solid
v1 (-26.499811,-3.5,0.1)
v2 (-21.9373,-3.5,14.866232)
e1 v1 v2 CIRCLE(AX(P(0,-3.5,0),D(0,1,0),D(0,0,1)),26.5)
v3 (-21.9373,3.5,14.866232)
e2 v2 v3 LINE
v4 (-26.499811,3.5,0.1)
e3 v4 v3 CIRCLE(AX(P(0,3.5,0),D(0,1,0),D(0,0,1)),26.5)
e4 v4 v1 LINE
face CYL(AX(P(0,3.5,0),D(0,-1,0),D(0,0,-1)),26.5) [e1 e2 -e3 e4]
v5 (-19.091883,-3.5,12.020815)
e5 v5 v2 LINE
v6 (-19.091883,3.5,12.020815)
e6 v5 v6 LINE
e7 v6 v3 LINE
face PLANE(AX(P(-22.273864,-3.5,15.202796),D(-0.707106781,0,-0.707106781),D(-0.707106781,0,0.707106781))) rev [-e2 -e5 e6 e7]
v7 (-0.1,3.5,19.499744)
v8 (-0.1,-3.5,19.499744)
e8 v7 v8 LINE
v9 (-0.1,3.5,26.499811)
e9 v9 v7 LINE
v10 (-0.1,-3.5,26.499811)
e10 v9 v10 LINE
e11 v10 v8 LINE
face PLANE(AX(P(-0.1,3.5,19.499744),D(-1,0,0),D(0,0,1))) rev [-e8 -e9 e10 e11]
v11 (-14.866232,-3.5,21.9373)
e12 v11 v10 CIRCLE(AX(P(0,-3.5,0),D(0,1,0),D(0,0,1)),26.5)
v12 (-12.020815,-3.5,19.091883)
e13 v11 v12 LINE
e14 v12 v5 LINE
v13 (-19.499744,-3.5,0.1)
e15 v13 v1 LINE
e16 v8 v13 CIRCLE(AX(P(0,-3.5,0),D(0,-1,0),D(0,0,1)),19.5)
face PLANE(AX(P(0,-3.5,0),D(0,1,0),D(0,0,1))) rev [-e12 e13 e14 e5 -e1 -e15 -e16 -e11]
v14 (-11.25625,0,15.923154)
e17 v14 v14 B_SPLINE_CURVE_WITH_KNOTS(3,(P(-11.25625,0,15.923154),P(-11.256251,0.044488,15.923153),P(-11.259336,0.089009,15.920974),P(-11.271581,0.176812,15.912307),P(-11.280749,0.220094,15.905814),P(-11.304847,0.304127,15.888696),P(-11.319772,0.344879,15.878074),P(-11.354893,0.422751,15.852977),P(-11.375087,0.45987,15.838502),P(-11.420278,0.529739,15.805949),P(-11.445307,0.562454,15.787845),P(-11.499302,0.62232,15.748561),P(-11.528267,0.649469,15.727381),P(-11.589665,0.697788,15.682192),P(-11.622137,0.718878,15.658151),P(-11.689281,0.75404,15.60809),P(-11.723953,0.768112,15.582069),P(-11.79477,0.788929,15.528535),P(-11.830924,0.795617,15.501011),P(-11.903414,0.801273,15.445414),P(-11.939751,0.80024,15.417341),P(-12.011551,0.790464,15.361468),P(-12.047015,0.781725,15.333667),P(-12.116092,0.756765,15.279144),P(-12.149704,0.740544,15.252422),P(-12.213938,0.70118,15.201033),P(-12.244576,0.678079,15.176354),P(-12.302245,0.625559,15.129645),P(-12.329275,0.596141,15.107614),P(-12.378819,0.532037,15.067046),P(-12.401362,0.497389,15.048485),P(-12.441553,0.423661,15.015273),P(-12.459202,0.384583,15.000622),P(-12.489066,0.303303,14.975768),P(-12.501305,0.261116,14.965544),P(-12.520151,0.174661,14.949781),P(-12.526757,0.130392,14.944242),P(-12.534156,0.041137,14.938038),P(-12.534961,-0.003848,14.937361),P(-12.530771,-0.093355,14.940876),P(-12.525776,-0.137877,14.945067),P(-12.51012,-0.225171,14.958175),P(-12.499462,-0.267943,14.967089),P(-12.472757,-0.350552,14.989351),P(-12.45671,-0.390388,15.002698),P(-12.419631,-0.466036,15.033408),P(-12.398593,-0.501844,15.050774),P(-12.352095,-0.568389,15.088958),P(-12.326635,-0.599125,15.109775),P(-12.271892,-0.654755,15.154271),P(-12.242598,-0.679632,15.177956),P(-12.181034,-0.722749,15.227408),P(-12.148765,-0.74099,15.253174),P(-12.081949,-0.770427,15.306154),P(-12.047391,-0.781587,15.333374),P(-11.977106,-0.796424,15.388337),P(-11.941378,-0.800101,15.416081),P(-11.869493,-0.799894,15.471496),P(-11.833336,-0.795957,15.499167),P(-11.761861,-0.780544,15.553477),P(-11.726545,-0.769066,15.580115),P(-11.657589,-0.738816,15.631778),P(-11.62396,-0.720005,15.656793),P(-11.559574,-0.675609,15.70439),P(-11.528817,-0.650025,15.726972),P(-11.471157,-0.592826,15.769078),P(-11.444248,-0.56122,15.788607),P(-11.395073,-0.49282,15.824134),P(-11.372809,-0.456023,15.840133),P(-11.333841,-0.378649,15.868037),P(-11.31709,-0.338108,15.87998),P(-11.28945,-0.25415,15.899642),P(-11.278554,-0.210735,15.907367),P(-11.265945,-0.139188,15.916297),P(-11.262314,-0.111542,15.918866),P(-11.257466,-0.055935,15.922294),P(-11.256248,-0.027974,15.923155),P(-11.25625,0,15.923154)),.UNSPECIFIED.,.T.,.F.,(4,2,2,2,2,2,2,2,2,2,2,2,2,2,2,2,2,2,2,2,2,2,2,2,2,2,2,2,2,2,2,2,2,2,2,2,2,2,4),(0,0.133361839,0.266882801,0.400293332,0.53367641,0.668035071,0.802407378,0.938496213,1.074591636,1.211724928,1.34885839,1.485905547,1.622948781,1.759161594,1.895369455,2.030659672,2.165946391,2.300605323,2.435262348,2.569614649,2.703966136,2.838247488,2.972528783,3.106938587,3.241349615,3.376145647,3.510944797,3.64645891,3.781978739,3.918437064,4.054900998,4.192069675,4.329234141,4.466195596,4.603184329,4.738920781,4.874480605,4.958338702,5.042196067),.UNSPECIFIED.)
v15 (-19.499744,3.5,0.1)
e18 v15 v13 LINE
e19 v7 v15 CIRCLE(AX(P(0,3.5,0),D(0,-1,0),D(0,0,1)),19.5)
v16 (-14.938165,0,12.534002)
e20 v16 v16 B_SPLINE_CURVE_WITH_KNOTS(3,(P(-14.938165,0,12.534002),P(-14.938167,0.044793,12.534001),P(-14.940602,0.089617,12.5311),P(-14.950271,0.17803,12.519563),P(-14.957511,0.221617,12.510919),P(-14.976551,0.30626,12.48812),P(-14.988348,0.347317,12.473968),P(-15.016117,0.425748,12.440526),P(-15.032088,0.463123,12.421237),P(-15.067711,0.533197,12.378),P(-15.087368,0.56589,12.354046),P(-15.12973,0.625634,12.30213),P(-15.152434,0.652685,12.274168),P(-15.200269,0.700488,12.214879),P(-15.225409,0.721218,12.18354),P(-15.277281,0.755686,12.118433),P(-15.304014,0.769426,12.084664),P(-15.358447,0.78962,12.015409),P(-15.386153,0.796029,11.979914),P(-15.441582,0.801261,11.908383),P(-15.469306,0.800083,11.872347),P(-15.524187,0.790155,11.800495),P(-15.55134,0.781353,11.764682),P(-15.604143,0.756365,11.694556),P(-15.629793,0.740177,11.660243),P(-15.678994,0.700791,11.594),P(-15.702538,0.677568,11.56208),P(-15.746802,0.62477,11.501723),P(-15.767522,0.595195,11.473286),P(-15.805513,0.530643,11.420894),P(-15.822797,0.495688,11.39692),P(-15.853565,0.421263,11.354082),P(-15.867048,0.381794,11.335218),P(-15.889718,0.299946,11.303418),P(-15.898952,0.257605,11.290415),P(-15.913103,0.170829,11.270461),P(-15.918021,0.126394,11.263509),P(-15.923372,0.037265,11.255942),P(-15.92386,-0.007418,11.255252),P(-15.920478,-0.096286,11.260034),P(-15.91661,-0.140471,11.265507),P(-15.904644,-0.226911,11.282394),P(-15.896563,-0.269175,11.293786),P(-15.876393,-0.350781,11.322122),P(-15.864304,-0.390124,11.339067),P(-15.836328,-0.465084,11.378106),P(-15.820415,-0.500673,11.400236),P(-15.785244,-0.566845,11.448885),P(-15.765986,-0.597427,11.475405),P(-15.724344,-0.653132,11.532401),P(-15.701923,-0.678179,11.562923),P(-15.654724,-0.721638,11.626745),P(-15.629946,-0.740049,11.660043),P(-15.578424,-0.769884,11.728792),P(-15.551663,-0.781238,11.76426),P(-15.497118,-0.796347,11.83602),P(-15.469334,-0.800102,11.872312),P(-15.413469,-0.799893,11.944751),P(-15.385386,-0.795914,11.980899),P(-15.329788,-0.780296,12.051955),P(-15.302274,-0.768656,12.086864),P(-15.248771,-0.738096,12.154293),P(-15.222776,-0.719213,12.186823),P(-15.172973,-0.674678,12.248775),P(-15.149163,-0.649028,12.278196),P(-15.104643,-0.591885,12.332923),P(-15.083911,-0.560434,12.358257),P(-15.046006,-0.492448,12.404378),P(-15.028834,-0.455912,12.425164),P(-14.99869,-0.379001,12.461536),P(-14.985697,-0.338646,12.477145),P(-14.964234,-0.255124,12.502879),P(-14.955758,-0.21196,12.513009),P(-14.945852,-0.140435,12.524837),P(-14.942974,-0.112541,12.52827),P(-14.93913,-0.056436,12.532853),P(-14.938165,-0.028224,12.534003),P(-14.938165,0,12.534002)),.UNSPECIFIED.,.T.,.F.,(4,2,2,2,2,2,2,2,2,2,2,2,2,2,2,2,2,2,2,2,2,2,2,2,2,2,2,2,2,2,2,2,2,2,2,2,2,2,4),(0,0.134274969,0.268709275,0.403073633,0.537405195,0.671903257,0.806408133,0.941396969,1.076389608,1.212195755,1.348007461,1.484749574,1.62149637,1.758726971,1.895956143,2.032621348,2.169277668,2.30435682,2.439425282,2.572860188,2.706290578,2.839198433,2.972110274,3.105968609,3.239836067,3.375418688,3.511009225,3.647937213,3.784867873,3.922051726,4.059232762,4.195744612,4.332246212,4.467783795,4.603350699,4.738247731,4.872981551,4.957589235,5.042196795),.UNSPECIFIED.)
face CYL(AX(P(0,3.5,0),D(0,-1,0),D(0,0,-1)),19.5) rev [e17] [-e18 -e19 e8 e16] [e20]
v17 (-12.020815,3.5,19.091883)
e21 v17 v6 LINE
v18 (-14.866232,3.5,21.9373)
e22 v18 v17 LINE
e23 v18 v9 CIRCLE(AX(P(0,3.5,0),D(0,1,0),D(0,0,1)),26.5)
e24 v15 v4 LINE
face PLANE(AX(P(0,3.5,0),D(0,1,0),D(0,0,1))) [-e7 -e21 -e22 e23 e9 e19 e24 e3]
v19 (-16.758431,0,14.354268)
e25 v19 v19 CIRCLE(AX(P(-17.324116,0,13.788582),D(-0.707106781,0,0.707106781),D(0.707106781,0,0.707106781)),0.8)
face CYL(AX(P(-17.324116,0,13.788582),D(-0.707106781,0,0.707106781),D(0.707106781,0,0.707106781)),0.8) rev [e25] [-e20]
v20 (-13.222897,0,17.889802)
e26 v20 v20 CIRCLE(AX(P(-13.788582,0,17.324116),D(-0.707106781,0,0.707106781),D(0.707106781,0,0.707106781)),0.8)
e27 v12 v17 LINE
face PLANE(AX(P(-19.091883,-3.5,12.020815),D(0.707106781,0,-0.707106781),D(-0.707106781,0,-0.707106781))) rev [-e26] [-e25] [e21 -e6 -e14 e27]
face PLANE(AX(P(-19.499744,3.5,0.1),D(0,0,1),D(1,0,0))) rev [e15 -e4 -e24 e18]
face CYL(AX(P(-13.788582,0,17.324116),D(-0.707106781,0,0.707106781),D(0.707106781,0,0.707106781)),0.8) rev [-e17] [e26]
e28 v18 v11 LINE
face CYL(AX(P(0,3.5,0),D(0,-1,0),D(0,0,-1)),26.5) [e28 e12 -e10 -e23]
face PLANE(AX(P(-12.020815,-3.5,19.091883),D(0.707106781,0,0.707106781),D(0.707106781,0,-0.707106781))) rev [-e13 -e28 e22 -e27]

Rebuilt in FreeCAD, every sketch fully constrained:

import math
import FreeCAD as App
import Part
import Sketcher
from FreeCAD import Vector
Q = App.Units.Quantity


def add_polygon(sketch, points):
    """Adds a closed chain of lines whose ends are joined by coincident constraints."""
    first, n = sketch.GeometryCount, len(points)
    for a, b in zip(points, points[1:] + points[:1]):
        sketch.addGeometry(Part.LineSegment(App.Vector(*a, 0), App.Vector(*b, 0)), False)
    for i in range(n):
        sketch.addConstraint(Sketcher.Constraint("Coincident", first + i, 2, first + (i + 1) % n, 1))

doc = App.newDocument("Part")
body = doc.addObject("PartDesign::Body", "Body")

# Sketch on XZ plane
sketch1 = body.newObject("Sketcher::SketchObject", "Sketch")
sketch1.AttachmentSupport = (doc.getObject("XZ_Plane"), [""])
sketch1.MapMode = "FlatFace"
sketch1.addGeometry(Part.LineSegment(Vector(-19.499744, 0.1, 0), Vector(-26.499811, 0.1, 0)), False)
sketch1.addGeometry(Part.ArcOfCircle(Part.Circle(Vector(0, 0, 0), Vector(0, 0, 1), 26.5), math.radians(90.216211), math.radians(179.783789)), False)
sketch1.addGeometry(Part.LineSegment(Vector(-0.1, 26.499811, 0), Vector(-0.1, 19.499744, 0)), False)
sketch1.addGeometry(Part.ArcOfCircle(Part.Circle(Vector(0, 0, 0), Vector(0, 0, 1), 19.5), math.radians(90.293826), math.radians(179.706174)), False)
sketch1.addConstraint(Sketcher.Constraint("Coincident", 0, 2, 1, 2))
sketch1.addConstraint(Sketcher.Constraint("Coincident", 1, 1, 2, 1))
sketch1.addConstraint(Sketcher.Constraint("Coincident", 2, 2, 3, 1))
sketch1.addConstraint(Sketcher.Constraint("Coincident", 3, 2, 0, 1))
sketch1.addConstraint(Sketcher.Constraint("Horizontal", 0))
sketch1.addConstraint(Sketcher.Constraint("Vertical", 2))
sketch1.addConstraint(Sketcher.Constraint("Coincident", 1, 3, -1, 1))
sketch1.addConstraint(Sketcher.Constraint("Coincident", 3, 3, -1, 1))
sketch1.addConstraint(Sketcher.Constraint("Radius", 1, Q("26.5 mm")))
sketch1.addConstraint(Sketcher.Constraint("Radius", 3, Q("19.5 mm")))
sketch1.addConstraint(Sketcher.Constraint("DistanceY", -1, 1, 0, 2, Q("0.1 mm")))
sketch1.addConstraint(Sketcher.Constraint("DistanceX", 1, 1, -1, 1, Q("0.1 mm")))
pad1 = body.newObject("PartDesign::Pad", "Pad")
pad1.Profile = sketch1
pad1.Length = 7
pad1.Midplane = True

# Sketch on XZ plane
sketch2 = body.newObject("Sketcher::SketchObject", "Sketch001")
sketch2.AttachmentSupport = (doc.getObject("XZ_Plane"), [""])
sketch2.MapMode = "FlatFace"
sketch2.AttachmentOffset = App.Placement(Vector(0, 0, -3.5), App.Rotation())
add_polygon(sketch2, [(-22.273864, 15.202796), (-15.202796, 22.273864), (-12.020815, 19.091883), (-19.091883, 12.020815)])  # lines 0-3
sketch2.addConstraint(Sketcher.Constraint("Perpendicular", 0, 1))
sketch2.addConstraint(Sketcher.Constraint("Perpendicular", 1, 2))
sketch2.addConstraint(Sketcher.Constraint("Perpendicular", 2, 3))
sketch2.addConstraint(Sketcher.Constraint("Angle", 0, Q("45 deg")))
sketch2.addConstraint(Sketcher.Constraint("Distance", 0, Q("10 mm")))
sketch2.addConstraint(Sketcher.Constraint("Distance", 1, Q("4.5 mm")))
sketch2.addConstraint(Sketcher.Constraint("DistanceX", 0, 2, -1, 1, Q("15.202796 mm")))
sketch2.addConstraint(Sketcher.Constraint("DistanceY", -1, 1, 0, 2, Q("22.273864 mm")))
pocket1 = body.newObject("PartDesign::Pocket", "Pocket")
pocket1.Profile = sketch2
pocket1.Type = "ThroughAll"
pocket1.Reversed = True

# Sketch on an angled plane
sketch3 = body.newObject("Sketcher::SketchObject", "Sketch002")
sketch3.Placement = App.Placement(Vector(-15.556349, 0, 15.556349), App.Rotation(Vector(0.707106781, 0, 0.707106781), Vector(0, 0.999999999, 0), Vector(-0.707106781, 0, 0.707106781), "ZXY"))
sketch3.addGeometry(Part.Circle(Vector(-2.5, 0, 0), Vector(0, 0, 1), 0.8), False)
sketch3.addConstraint(Sketcher.Constraint("PointOnObject", 0, 3, -1))
sketch3.addConstraint(Sketcher.Constraint("Diameter", 0, Q("1.6 mm")))
sketch3.addConstraint(Sketcher.Constraint("DistanceX", 0, 3, -1, 1, Q("2.5 mm")))
doc.recompute()
hole = body.newObject("PartDesign::Hole", "Hole")
hole.Profile = sketch3
hole.ThreadType = "None"
hole.Diameter = 1.6
hole.DepthType = "ThroughAll"

# Sketch on an angled plane
sketch4 = body.newObject("Sketcher::SketchObject", "Sketch003")
sketch4.Placement = App.Placement(Vector(-15.556349, 0, 15.556349), App.Rotation(Vector(0.707106781, 0, 0.707106781), Vector(0, 0.999999999, 0), Vector(-0.707106781, 0, 0.707106781), "ZXY"))
sketch4.addGeometry(Part.Circle(Vector(2.5, 0, 0), Vector(0, 0, 1), 0.8), False)
sketch4.addConstraint(Sketcher.Constraint("PointOnObject", 0, 3, -1))
sketch4.addConstraint(Sketcher.Constraint("Diameter", 0, Q("1.6 mm")))
sketch4.addConstraint(Sketcher.Constraint("DistanceX", -1, 1, 0, 3, Q("2.5 mm")))
doc.recompute()
hole2 = body.newObject("PartDesign::Hole", "Hole001")
hole2.Profile = sketch4
hole2.ThreadType = "None"
hole2.Diameter = 1.6
hole2.DepthType = "ThroughAll"

doc.recompute()
